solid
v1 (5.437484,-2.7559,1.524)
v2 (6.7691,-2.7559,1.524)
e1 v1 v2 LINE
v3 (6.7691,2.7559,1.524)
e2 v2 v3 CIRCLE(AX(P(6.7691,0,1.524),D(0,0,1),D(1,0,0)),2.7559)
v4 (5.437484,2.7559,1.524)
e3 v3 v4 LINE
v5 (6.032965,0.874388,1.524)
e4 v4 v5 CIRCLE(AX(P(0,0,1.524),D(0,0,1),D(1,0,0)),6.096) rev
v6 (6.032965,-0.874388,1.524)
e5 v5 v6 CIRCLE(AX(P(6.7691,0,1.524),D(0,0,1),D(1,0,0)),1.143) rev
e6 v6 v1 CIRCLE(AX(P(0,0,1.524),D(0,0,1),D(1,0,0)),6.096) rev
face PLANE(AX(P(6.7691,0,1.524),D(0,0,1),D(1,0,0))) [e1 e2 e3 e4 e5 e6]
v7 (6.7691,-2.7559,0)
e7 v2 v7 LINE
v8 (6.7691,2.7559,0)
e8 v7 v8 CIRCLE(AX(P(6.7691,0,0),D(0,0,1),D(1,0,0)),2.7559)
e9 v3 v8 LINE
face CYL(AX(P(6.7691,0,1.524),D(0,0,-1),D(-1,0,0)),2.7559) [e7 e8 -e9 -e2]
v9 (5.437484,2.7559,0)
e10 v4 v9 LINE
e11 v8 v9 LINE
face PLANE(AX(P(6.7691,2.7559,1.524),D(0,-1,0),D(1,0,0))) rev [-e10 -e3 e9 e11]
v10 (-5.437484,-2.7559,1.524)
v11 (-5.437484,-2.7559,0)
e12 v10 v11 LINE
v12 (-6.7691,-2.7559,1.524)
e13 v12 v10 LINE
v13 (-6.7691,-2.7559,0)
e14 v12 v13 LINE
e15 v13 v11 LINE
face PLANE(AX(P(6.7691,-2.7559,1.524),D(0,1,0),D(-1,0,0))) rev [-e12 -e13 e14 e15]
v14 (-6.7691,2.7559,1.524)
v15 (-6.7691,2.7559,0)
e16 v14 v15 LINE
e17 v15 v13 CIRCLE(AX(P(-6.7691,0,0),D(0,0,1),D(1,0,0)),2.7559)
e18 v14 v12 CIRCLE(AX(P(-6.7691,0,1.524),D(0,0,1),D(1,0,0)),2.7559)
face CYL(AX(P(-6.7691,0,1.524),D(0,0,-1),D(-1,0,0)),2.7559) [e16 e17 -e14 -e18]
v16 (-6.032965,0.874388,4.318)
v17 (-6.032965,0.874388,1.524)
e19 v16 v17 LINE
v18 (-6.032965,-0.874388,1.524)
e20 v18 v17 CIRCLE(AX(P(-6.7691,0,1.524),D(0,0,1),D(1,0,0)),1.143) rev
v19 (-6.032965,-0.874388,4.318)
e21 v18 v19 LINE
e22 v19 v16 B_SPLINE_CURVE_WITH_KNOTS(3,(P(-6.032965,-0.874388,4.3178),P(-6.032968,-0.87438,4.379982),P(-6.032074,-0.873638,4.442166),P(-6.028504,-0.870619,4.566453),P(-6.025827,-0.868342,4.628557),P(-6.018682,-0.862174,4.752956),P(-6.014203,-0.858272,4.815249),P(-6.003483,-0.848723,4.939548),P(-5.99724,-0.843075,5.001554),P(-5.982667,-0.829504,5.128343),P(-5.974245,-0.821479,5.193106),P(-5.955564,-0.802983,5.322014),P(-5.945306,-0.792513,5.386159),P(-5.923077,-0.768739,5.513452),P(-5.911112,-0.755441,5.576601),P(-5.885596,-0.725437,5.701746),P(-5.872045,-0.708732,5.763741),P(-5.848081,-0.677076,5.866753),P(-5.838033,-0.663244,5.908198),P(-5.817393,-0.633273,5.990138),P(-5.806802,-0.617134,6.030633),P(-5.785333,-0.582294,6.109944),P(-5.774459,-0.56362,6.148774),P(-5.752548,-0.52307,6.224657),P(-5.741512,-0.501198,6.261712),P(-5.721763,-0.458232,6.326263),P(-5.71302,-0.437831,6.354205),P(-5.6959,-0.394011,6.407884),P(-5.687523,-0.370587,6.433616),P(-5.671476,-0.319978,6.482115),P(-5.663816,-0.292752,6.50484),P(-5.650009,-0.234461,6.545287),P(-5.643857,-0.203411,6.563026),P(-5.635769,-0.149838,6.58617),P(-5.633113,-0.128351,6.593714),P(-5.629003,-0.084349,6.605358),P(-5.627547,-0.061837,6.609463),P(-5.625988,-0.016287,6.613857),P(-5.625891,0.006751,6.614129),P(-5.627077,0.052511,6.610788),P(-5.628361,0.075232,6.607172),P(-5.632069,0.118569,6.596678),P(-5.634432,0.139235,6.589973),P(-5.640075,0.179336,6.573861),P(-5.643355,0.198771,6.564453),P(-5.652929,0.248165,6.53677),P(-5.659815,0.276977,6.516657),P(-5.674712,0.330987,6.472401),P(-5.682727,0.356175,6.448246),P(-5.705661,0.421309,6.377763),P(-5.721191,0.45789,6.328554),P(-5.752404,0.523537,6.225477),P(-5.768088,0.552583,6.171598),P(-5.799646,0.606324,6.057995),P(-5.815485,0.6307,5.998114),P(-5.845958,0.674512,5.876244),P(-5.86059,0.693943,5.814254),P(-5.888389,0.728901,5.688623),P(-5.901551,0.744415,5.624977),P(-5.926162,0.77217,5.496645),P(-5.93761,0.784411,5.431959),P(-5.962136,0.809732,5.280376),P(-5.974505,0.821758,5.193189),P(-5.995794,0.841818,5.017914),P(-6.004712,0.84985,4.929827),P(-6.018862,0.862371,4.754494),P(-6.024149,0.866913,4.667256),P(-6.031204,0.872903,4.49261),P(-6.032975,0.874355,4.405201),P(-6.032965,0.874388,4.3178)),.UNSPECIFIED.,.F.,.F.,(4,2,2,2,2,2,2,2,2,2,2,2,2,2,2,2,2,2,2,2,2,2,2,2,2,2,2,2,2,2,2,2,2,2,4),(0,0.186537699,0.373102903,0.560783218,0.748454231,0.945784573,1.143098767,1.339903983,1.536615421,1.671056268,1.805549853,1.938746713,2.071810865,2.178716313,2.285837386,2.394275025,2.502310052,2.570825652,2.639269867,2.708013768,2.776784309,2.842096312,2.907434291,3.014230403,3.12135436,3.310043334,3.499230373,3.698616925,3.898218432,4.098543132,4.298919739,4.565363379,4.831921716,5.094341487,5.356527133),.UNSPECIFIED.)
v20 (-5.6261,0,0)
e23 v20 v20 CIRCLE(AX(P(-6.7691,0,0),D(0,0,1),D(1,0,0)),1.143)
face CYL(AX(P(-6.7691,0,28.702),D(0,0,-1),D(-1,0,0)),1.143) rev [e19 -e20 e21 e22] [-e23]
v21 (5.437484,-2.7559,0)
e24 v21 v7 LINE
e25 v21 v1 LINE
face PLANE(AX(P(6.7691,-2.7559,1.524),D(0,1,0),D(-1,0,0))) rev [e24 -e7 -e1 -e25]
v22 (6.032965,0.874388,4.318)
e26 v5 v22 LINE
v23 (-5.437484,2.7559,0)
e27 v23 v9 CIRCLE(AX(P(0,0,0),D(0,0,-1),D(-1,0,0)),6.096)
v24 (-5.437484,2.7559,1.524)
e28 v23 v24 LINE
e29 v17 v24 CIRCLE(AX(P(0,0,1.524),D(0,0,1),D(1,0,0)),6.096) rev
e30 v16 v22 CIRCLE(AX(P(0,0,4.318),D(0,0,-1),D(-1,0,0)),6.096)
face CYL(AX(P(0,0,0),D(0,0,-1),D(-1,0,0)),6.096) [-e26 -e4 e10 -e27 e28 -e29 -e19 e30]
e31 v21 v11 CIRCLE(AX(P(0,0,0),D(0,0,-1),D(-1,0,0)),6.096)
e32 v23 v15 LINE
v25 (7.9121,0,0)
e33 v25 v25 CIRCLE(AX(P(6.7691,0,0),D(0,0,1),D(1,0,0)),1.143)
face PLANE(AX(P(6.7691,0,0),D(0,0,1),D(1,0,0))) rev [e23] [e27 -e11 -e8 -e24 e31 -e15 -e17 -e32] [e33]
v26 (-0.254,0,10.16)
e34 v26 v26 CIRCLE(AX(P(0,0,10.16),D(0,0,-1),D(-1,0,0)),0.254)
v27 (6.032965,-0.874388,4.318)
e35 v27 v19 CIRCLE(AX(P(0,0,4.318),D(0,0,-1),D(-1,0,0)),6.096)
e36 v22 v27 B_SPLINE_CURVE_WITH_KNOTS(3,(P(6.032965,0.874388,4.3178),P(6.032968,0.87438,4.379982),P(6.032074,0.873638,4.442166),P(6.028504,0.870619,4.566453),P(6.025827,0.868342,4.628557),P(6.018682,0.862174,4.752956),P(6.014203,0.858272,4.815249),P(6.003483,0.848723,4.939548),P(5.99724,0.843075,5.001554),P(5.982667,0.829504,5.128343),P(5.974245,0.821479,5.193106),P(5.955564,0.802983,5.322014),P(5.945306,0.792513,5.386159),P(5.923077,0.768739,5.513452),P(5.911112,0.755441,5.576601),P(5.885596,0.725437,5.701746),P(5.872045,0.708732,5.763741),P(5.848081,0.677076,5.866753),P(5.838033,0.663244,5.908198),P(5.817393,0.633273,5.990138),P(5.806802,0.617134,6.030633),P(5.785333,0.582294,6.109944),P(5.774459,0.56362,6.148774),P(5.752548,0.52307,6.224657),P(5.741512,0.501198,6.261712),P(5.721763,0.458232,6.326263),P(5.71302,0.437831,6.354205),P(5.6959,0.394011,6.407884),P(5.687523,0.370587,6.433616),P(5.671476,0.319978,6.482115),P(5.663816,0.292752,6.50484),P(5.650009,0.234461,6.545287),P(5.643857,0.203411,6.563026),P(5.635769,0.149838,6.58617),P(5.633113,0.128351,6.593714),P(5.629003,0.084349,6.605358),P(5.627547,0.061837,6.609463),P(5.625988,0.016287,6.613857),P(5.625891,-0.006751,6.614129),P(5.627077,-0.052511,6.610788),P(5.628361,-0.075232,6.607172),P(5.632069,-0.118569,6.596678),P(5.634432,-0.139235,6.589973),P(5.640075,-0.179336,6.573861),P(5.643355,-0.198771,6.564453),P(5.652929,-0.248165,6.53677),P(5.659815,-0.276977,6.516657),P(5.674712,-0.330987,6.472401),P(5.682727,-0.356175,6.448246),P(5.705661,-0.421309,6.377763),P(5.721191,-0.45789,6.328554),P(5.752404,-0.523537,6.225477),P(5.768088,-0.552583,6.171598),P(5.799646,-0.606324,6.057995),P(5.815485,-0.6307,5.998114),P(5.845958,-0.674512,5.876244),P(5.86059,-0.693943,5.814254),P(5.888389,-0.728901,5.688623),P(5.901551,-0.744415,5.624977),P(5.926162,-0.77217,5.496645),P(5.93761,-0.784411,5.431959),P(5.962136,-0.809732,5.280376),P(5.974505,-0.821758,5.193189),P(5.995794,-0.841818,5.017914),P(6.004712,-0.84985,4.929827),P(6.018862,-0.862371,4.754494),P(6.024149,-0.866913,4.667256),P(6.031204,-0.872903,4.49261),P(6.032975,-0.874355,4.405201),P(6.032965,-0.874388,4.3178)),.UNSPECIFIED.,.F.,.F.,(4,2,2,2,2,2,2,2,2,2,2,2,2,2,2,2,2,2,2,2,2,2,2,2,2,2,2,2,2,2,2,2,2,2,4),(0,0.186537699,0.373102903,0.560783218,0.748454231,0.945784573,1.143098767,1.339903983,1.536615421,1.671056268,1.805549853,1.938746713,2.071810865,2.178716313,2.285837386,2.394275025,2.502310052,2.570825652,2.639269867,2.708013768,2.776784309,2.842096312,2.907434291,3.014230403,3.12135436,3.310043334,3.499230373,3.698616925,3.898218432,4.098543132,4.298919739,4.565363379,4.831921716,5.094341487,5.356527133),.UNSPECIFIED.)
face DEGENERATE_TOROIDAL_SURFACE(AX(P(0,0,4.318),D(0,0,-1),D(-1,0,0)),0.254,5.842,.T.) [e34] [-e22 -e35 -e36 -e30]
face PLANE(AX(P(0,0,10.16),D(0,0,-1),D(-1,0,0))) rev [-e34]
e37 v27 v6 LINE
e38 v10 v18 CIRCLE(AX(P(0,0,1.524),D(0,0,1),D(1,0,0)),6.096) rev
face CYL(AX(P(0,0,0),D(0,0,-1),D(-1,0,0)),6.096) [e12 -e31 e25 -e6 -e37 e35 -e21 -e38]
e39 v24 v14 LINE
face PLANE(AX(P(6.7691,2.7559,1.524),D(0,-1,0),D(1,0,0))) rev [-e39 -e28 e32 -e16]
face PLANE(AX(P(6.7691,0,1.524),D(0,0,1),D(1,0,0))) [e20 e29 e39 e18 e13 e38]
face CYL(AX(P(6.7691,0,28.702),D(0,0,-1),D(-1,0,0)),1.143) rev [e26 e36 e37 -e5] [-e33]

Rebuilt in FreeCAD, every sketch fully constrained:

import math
import FreeCAD as App
import Part
import Sketcher
Q = App.Units.Quantity

doc = App.newDocument("Part")
body = doc.addObject("PartDesign::Body", "Body")

# Sketch on XY plane
sketch1 = body.newObject("Sketcher::SketchObject", "Sketch")
sketch1.AttachmentSupport = (doc.getObject("XY_Plane"), [""])
sketch1.MapMode = "FlatFace"
sketch1.addGeometry(Part.LineSegment(App.Vector(-6.8, -2.8, 0), App.Vector(6.8, -2.8, 0)), False)
sketch1.addGeometry(Part.ArcOfCircle(Part.Circle(App.Vector(6.8, 0, 0), App.Vector(0, 0, 1), 2.8), math.radians(-90), math.radians(90)), False)
sketch1.addGeometry(Part.LineSegment(App.Vector(6.8, 2.8, 0), App.Vector(-6.8, 2.8, 0)), False)
sketch1.addGeometry(Part.ArcOfCircle(Part.Circle(App.Vector(-6.8, 0, 0), App.Vector(0, 0, 1), 2.8), math.radians(90), math.radians(270)), False)
sketch1.addConstraint(Sketcher.Constraint("Tangent", 0, 2, 1, 1))
sketch1.addConstraint(Sketcher.Constraint("Tangent", 1, 2, 2, 1))
sketch1.addConstraint(Sketcher.Constraint("Tangent", 2, 2, 3, 1))
sketch1.addConstraint(Sketcher.Constraint("Tangent", 3, 2, 0, 1))
sketch1.addConstraint(Sketcher.Constraint("Horizontal", 0))
sketch1.addConstraint(Sketcher.Constraint("Horizontal", 2))
sketch1.addConstraint(Sketcher.Constraint("Symmetric", 1, 3, 3, 3, -1, 1))
sketch1.addConstraint(Sketcher.Constraint("Radius", 1, Q("0.1085 in")))
sketch1.addConstraint(Sketcher.Constraint("DistanceX", 0, 1, 0, 2, Q("0.533 in")))
pad1 = body.newObject("PartDesign::Pad", "Pad")
pad1.Profile = sketch1
pad1.Length = Q("0.06 in")

# Sketch on XZ plane
sketch2 = body.newObject("Sketcher::SketchObject", "Sketch001")
sketch2.AttachmentSupport = (doc.getObject("XZ_Plane"), [""])
sketch2.MapMode = "FlatFace"
sketch2.addGeometry(Part.LineSegment(App.Vector(6.1, 0, 0), App.Vector(0, 0, 0)), False)
sketch2.addGeometry(Part.LineSegment(App.Vector(0, 0, 0), App.Vector(0, 10.16, 0)), False)
sketch2.addGeometry(Part.LineSegment(App.Vector(0, 10.16, 0), App.Vector(0.25, 10.16, 0)), False)
sketch2.addGeometry(Part.ArcOfCircle(Part.Circle(App.Vector(0.25, 4.32, 0), App.Vector(0, 0, 1), 5.84), math.radians(0), math.radians(90)), False)
sketch2.addGeometry(Part.LineSegment(App.Vector(6.1, 4.32, 0), App.Vector(6.1, 0, 0)), False)
sketch2.addConstraint(Sketcher.Constraint("Coincident", 0, 2, 1, 1))
sketch2.addConstraint(Sketcher.Constraint("Coincident", 1, 2, 2, 1))
sketch2.addConstraint(Sketcher.Constraint("Tangent", 2, 2, 3, 2))
sketch2.addConstraint(Sketcher.Constraint("Tangent", 3, 1, 4, 1))
sketch2.addConstraint(Sketcher.Constraint("Coincident", 4, 2, 0, 1))
sketch2.addConstraint(Sketcher.Constraint("Horizontal", 0))
sketch2.addConstraint(Sketcher.Constraint("Vertical", 1))
sketch2.addConstraint(Sketcher.Constraint("Horizontal", 2))
sketch2.addConstraint(Sketcher.Constraint("Vertical", 4))
sketch2.addConstraint(Sketcher.Constraint("Coincident", 0, 2, -1, 1))
sketch2.addConstraint(Sketcher.Constraint("Radius", 3, Q("0.23 in")))
sketch2.addConstraint(Sketcher.Constraint("DistanceY", 1, 1, 1, 2, Q("0.4 in")))
sketch2.addConstraint(Sketcher.Constraint("DistanceX", 0, 2, 0, 1, Q("0.24 in")))
revolution = body.newObject("PartDesign::Revolution", "Revolution")
revolution.Profile = sketch2
revolution.ReferenceAxis = (sketch2, ["V_Axis"])
revolution.Angle = 360

# Sketch on XY plane
sketch3 = body.newObject("Sketcher::SketchObject", "Sketch002")
sketch3.AttachmentSupport = (doc.getObject("XY_Plane"), [""])
sketch3.MapMode = "FlatFace"
sketch3.addGeometry(Part.Circle(App.Vector(-6.8, 0, 0), App.Vector(0, 0, 1), 1.1), False)
sketch3.addGeometry(Part.Circle(App.Vector(6.8, 0, 0), App.Vector(0, 0, 1), 1.1), False)
sketch3.addConstraint(Sketcher.Constraint("Equal", 0, 1))
sketch3.addConstraint(Sketcher.Constraint("Symmetric", 0, 3, 1, 3, -1, 1))
sketch3.addConstraint(Sketcher.Constraint("PointOnObject", 0, 3, -1))
sketch3.addConstraint(Sketcher.Constraint("Diameter", 0, Q("0.09 in")))
sketch3.addConstraint(Sketcher.Constraint("DistanceX", 0, 3, 1, 3, Q("0.533 in")))
pocket1 = body.newObject("PartDesign::Pocket", "Pocket")
pocket1.Profile = sketch3
pocket1.Length = Q("1.13 in")
pocket1.Reversed = True

doc.recompute()
